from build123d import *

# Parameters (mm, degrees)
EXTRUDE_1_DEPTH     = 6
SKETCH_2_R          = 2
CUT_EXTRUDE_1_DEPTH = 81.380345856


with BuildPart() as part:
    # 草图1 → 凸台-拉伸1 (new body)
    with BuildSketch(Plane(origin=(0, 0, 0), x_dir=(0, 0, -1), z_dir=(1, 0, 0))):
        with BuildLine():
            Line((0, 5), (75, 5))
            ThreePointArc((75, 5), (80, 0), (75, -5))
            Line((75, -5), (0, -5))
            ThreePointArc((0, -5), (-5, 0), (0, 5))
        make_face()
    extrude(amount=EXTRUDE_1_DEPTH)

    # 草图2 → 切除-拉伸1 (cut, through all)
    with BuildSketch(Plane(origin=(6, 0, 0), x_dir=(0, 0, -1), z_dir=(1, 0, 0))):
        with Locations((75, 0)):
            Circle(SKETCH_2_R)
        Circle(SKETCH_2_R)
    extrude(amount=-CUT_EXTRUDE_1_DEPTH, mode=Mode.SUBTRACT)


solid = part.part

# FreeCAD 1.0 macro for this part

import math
import FreeCAD as App
import Part
import Sketcher
Q = App.Units.Quantity

doc = App.newDocument("Part")
body = doc.addObject("PartDesign::Body", "Body")

# Sketch on YZ plane
sketch1 = body.newObject("Sketcher::SketchObject", "Sketch")
sketch1.AttachmentSupport = (doc.getObject("YZ_Plane"), [""])
sketch1.MapMode = "FlatFace"
sketch1.addGeometry([
    Part.LineSegment(App.Vector(5, -75, 0), App.Vector(5, 0, 0)),
    Part.ArcOfCircle(Part.Circle(App.Vector(0, 0, 0), App.Vector(0, 0, 1), 5), math.radians(0), math.radians(180)),
    Part.LineSegment(App.Vector(-5, 0, 0), App.Vector(-5, -75, 0)),
    Part.ArcOfCircle(Part.Circle(App.Vector(0, -75, 0), App.Vector(0, 0, 1), 5), math.radians(180), math.radians(360)),
], False)
sketch1.addConstraint([
    Sketcher.Constraint("Tangent", 0, 2, 1, 1),
    Sketcher.Constraint("Tangent", 1, 2, 2, 1),
    Sketcher.Constraint("Tangent", 2, 2, 3, 1),
    Sketcher.Constraint("Tangent", 3, 2, 0, 1),
    Sketcher.Constraint("Vertical", 0),
    Sketcher.Constraint("Vertical", 2),
    Sketcher.Constraint("Coincident", 1, 3, -1, 1),
    Sketcher.Constraint("Radius", 1, Q("5 mm")),
    Sketcher.Constraint("DistanceY", 0, 1, 0, 2, Q("75 mm")),
])
pad1 = body.newObject("PartDesign::Pad", "Pad")
pad1.Profile = sketch1
pad1.Length = 6

# Sketch on YZ plane
sketch2 = body.newObject("Sketcher::SketchObject", "Sketch001")
sketch2.AttachmentSupport = (doc.getObject("YZ_Plane"), [""])
sketch2.MapMode = "FlatFace"
sketch2.AttachmentOffset = App.Placement(App.Vector(0, 0, 6), App.Rotation())
sketch2.addGeometry([
    Part.Circle(App.Vector(0, -75, 0), App.Vector(0, 0, 1), 2),
    Part.Circle(App.Vector(0, 0, 0), App.Vector(0, 0, 1), 2),
], False)
sketch2.addConstraint([
    Sketcher.Constraint("Coincident", 1, 3, -1, 1),
    Sketcher.Constraint("Equal", 0, 1),
    Sketcher.Constraint("PointOnObject", 0, 3, -2),
    Sketcher.Constraint("Diameter", 0, Q("4 mm")),
    Sketcher.Constraint("DistanceY", 0, 3, -1, 1, Q("75 mm")),
])
pocket1 = body.newObject("PartDesign::Pocket", "Pocket")
pocket1.Profile = sketch2
pocket1.Type = "ThroughAll"

doc.recompute()
